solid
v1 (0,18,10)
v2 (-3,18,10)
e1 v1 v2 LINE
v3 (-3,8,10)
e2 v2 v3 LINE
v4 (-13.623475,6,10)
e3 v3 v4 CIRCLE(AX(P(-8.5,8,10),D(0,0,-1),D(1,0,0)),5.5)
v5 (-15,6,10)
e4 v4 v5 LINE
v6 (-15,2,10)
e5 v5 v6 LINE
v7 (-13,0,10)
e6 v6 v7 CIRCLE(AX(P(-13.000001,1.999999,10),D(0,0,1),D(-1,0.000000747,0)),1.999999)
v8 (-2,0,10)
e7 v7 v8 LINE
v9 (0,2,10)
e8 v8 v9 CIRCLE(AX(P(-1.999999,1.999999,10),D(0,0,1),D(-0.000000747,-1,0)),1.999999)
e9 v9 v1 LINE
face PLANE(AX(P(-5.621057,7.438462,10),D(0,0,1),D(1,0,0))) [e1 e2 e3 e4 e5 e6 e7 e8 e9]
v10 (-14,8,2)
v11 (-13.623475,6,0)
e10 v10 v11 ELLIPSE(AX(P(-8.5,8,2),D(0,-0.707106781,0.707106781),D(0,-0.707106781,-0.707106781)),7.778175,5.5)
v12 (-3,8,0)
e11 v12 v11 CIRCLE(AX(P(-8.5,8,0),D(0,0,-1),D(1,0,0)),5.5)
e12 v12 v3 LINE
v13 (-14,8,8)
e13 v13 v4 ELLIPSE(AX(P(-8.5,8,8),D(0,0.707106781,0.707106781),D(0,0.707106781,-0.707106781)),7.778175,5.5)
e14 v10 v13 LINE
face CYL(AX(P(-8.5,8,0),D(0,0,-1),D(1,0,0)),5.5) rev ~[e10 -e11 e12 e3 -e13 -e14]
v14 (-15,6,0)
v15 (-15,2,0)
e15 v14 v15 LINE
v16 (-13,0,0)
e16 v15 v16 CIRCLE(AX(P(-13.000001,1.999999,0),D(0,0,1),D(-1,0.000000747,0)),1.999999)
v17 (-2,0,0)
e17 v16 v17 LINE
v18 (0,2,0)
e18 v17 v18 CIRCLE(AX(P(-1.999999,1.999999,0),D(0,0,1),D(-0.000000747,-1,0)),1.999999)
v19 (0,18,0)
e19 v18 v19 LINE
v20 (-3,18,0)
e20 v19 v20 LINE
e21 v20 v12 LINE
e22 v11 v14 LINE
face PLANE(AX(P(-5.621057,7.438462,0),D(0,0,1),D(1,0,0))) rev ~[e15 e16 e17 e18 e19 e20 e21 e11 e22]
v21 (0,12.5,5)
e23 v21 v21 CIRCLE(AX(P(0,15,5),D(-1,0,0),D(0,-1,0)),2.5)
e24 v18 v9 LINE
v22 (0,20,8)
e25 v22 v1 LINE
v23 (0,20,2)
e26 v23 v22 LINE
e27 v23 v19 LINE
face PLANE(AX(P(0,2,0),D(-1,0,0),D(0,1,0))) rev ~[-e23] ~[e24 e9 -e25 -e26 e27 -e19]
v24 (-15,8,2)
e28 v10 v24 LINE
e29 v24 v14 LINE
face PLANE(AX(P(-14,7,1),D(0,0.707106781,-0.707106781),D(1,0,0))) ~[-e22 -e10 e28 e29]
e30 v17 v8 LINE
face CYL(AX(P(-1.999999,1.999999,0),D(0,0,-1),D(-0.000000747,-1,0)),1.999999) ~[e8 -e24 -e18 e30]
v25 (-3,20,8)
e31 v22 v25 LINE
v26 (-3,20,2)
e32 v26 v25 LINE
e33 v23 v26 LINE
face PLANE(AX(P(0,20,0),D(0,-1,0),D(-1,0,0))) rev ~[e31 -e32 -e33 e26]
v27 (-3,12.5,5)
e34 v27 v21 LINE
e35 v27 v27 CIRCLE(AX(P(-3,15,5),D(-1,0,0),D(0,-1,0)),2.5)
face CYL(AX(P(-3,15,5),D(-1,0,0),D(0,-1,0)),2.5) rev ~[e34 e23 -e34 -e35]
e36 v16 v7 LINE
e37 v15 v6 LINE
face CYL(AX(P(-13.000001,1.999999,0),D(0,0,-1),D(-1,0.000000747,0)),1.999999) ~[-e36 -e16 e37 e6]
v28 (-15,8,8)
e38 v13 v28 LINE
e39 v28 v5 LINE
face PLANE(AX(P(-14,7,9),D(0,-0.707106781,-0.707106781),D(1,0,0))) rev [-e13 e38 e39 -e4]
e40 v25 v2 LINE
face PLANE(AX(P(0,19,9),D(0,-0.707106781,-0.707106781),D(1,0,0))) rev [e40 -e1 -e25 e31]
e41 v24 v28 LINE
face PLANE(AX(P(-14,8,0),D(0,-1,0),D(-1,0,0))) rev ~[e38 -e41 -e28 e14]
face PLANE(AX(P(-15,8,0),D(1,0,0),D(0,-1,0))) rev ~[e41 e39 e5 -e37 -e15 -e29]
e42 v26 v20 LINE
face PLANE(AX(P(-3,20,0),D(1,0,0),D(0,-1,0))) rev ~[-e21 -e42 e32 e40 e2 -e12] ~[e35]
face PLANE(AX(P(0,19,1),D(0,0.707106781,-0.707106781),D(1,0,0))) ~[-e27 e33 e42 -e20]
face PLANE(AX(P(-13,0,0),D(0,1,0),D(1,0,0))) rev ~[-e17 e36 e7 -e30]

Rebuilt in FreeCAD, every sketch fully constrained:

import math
import FreeCAD as App
import Part
import Sketcher

V = App.Vector
Q = App.Units.Quantity


def edges_at(feature, points):
    """Names of the edges that pass closest to the given points."""
    edges = feature.Shape.Edges
    near = lambda p: min(range(len(edges)), key=lambda i: edges[i].distToShape(Part.Vertex(*p))[0])
    return sorted({f"Edge{near(p) + 1}" for p in points})

doc = App.newDocument("Part")
body = doc.addObject("PartDesign::Body", "Body")

sketch1 = body.newObject("Sketcher::SketchObject", "Sketch")
sketch1.AttachmentSupport = (doc.getObject("XY_Plane"), [""])
sketch1.MapMode = "FlatFace"
sketch1.addGeometry(Part.ArcOfCircle(Part.Circle(V(-2, 2, 0), V(0, 0, 1), 2), math.radians(-90), math.radians(0)), False)
sketch1.addGeometry(Part.LineSegment(V(0, 2, 0), V(0, 20, 0)), False)
sketch1.addGeometry(Part.LineSegment(V(0, 20, 0), V(-3, 20, 0)), False)
sketch1.addGeometry(Part.LineSegment(V(-3, 20, 0), V(-3, 8, 0)), False)
sketch1.addGeometry(Part.ArcOfCircle(Part.Circle(V(-8.5, 8, 0), V(0, 0, 1), 5.5), math.radians(180), math.radians(360)), False)
sketch1.addGeometry(Part.LineSegment(V(-14, 8, 0), V(-15, 8, 0)), False)
sketch1.addGeometry(Part.LineSegment(V(-15, 8, 0), V(-15, 2, 0)), False)
sketch1.addGeometry(Part.ArcOfCircle(Part.Circle(V(-13, 2, 0), V(0, 0, 1), 2), math.radians(180), math.radians(270)), False)
sketch1.addGeometry(Part.LineSegment(V(-13, 0, 0), V(-2, 0, 0)), False)
sketch1.addConstraint(Sketcher.Constraint("Tangent", 0, 2, 1, 1))
sketch1.addConstraint(Sketcher.Constraint("Coincident", 1, 2, 2, 1))
sketch1.addConstraint(Sketcher.Constraint("Coincident", 2, 2, 3, 1))
sketch1.addConstraint(Sketcher.Constraint("Tangent", 3, 2, 4, 2))
sketch1.addConstraint(Sketcher.Constraint("Coincident", 4, 1, 5, 1))
sketch1.addConstraint(Sketcher.Constraint("Coincident", 5, 2, 6, 1))
sketch1.addConstraint(Sketcher.Constraint("Tangent", 6, 2, 7, 1))
sketch1.addConstraint(Sketcher.Constraint("Tangent", 7, 2, 8, 1))
sketch1.addConstraint(Sketcher.Constraint("Tangent", 8, 2, 0, 1))
sketch1.addConstraint(Sketcher.Constraint("Vertical", 1))
sketch1.addConstraint(Sketcher.Constraint("Horizontal", 2))
sketch1.addConstraint(Sketcher.Constraint("Vertical", 3))
sketch1.addConstraint(Sketcher.Constraint("Horizontal", 5))
sketch1.addConstraint(Sketcher.Constraint("Vertical", 6))
sketch1.addConstraint(Sketcher.Constraint("Horizontal", 8))
sketch1.addConstraint(Sketcher.Constraint("Equal", 0, 7))
sketch1.addConstraint(Sketcher.Constraint("PointOnObject", 0, 2, -2))
sketch1.addConstraint(Sketcher.Constraint("PointOnObject", 7, 2, -1))
sketch1.addConstraint(Sketcher.Constraint("Horizontal", 3, 2, 4, 1))
sketch1.addConstraint(Sketcher.Constraint("Radius", 0, Q("1.999999 mm")))
sketch1.addConstraint(Sketcher.Constraint("Radius", 4, Q("5.5 mm")))
sketch1.addConstraint(Sketcher.Constraint("DistanceX", 2, 2, 2, 1, Q("3 mm")))
sketch1.addConstraint(Sketcher.Constraint("DistanceX", 5, 2, 5, 1, Q("1 mm")))
sketch1.addConstraint(Sketcher.Constraint("DistanceY", 1, 1, 1, 2, Q("18 mm")))
sketch1.addConstraint(Sketcher.Constraint("DistanceY", 3, 2, 3, 1, Q("12 mm")))
pad1 = body.newObject("PartDesign::Pad", "Pad")
pad1.Profile = sketch1
pad1.Length = 10
doc.recompute()

chamfer = body.newObject("PartDesign::Chamfer", "Chamfer")
chamfer.Base = (pad1, edges_at(pad1, [
    (-1.5, 20, 10),
    (-1.5, 20, 0),
    (-14.5, 8, 10),
    (-14.5, 8, 0),
]))
chamfer.Size = 2

sketch2 = body.newObject("Sketcher::SketchObject", "Sketch001")
sketch2.AttachmentSupport = (doc.getObject("YZ_Plane"), [""])
sketch2.MapMode = "FlatFace"
sketch2.AttachmentOffset = App.Placement(V(0, 0, -3), App.Rotation())
sketch2.addGeometry(Part.Circle(V(15, 5, 0), V(0, 0, 1), 2.5), False)
sketch2.addConstraint(Sketcher.Constraint("Diameter", 0, Q("5 mm")))
sketch2.addConstraint(Sketcher.Constraint("DistanceX", -1, 1, 0, 3, Q("15 mm")))
sketch2.addConstraint(Sketcher.Constraint("DistanceY", -1, 1, 0, 3, Q("5 mm")))
pocket1 = body.newObject("PartDesign::Pocket", "Pocket")
pocket1.Profile = sketch2
pocket1.Length = 25
pocket1.Reversed = True

doc.recompute()
